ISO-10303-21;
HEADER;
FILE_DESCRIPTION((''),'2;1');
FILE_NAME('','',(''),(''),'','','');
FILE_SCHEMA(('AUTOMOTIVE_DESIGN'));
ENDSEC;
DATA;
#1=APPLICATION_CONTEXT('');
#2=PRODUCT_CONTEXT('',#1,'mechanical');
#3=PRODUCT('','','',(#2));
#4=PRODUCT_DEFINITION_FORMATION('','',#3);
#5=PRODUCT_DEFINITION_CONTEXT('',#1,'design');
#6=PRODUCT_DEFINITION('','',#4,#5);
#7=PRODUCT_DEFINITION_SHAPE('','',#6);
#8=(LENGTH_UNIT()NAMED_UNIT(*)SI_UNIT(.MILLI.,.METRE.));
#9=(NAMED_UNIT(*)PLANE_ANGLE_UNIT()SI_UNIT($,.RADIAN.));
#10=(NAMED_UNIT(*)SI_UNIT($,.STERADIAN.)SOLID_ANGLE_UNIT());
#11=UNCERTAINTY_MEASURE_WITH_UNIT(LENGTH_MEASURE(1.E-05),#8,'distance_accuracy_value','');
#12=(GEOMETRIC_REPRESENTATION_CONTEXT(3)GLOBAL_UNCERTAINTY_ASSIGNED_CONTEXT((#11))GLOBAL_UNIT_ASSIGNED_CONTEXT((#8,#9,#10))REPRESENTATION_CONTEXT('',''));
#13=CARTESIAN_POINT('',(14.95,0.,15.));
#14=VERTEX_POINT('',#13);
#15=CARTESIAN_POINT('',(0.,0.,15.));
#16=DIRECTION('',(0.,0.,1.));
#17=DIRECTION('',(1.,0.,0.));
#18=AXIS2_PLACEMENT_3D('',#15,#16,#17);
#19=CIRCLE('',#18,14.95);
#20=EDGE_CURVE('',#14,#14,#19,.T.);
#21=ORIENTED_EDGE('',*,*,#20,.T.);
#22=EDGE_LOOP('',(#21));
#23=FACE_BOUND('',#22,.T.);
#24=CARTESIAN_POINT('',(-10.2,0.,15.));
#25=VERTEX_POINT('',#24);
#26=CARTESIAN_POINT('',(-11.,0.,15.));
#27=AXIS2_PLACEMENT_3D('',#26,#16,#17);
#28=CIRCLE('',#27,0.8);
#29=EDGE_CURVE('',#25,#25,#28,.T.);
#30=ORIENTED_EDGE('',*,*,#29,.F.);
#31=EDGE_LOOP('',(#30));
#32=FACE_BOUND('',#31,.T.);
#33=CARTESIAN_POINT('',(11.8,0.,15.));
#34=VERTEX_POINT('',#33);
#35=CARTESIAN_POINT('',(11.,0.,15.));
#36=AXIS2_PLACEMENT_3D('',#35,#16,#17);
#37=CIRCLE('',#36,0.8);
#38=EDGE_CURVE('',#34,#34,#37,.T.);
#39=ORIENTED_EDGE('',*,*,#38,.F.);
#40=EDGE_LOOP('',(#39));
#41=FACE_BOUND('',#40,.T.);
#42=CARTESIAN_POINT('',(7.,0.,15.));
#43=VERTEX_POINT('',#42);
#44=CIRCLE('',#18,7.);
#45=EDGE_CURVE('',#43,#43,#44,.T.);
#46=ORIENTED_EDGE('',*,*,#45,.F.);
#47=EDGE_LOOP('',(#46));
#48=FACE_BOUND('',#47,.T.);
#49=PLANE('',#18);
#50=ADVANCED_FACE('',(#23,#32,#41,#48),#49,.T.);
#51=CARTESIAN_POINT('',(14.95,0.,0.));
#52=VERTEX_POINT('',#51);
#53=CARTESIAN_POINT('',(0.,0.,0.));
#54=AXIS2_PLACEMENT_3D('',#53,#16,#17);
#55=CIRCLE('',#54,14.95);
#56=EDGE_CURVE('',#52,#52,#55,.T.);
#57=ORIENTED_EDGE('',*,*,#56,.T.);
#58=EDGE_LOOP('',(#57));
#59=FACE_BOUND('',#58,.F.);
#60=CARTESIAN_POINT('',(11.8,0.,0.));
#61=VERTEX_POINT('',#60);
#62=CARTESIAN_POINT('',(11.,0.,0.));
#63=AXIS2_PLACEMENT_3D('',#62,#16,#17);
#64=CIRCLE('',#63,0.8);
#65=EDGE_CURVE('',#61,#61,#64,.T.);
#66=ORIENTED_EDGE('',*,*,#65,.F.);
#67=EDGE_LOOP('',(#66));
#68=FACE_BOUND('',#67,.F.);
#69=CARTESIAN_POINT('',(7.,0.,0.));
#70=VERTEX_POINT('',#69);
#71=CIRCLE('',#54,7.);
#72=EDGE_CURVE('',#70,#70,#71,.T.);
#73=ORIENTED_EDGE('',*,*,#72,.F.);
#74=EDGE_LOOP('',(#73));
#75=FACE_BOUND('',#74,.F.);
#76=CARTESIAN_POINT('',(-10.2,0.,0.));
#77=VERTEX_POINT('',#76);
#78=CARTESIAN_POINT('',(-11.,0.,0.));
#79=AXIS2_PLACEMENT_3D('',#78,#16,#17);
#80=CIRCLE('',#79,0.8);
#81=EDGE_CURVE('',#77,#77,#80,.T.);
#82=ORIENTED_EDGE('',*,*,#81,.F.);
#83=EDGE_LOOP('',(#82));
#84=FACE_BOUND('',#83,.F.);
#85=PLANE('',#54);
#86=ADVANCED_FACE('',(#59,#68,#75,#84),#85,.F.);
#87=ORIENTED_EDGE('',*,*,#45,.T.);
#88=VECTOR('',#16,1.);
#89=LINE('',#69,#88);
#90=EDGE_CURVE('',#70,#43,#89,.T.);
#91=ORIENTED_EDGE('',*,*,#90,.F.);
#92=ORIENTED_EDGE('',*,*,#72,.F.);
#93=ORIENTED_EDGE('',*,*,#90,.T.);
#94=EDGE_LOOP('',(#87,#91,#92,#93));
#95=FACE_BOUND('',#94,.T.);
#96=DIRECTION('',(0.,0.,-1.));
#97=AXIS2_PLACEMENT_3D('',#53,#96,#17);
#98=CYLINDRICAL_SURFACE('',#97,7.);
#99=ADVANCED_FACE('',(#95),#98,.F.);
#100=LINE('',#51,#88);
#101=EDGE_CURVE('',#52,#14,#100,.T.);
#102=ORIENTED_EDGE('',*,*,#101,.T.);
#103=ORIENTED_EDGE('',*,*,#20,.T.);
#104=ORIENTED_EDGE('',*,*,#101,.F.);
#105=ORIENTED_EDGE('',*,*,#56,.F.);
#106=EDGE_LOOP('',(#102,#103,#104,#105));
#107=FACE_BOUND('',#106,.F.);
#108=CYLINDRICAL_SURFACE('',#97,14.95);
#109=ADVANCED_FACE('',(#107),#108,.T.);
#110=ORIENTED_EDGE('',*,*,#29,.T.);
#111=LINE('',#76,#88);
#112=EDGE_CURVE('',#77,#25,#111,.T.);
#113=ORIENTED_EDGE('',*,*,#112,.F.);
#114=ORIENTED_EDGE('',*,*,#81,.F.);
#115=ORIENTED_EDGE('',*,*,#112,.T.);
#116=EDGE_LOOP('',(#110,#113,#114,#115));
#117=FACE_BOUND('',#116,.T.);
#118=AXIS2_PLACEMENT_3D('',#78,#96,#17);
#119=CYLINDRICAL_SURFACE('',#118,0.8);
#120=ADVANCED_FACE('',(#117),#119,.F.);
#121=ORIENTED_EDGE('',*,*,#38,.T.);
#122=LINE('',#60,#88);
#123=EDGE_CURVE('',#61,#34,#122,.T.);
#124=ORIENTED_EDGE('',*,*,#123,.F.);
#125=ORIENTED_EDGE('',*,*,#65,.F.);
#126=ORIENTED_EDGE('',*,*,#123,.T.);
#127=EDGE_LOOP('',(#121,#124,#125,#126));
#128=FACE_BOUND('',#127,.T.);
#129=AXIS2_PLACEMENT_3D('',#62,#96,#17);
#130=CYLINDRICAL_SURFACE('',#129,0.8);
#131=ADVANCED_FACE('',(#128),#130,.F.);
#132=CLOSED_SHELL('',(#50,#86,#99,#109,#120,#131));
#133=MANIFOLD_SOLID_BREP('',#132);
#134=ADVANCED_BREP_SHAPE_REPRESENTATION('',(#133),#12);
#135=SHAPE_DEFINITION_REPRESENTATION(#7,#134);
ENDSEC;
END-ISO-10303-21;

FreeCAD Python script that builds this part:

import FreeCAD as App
import Part
import Sketcher
from FreeCAD import Vector
Q = App.Units.Quantity

doc = App.newDocument("Part")
body = doc.addObject("PartDesign::Body", "Body")

# Sketch on XY plane
sketch1 = body.newObject("Sketcher::SketchObject", "Sketch")
sketch1.AttachmentSupport = (doc.getObject("XY_Plane"), [""])
sketch1.MapMode = "FlatFace"
sketch1.addGeometry(Part.Circle(Vector(0, 0, 0), Vector(0, 0, 1), 14.95), False)
sketch1.addConstraint(Sketcher.Constraint("Coincident", 0, 3, -1, 1))
sketch1.addConstraint(Sketcher.Constraint("Diameter", 0, Q("29.9 mm")))
pad1 = body.newObject("PartDesign::Pad", "Pad")
pad1.Profile = sketch1
pad1.Length = 15

# Sketch on XY plane
sketch2 = body.newObject("Sketcher::SketchObject", "Sketch001")
sketch2.AttachmentSupport = (doc.getObject("XY_Plane"), [""])
sketch2.MapMode = "FlatFace"
sketch2.addGeometry(Part.Circle(Vector(0, 0, 0), Vector(0, 0, 1), 7), False)
sketch2.addConstraint(Sketcher.Constraint("Coincident", 0, 3, -1, 1))
sketch2.addConstraint(Sketcher.Constraint("Diameter", 0, Q("14 mm")))
pocket1 = body.newObject("PartDesign::Pocket", "Pocket")
pocket1.Profile = sketch2
pocket1.Length = 15
pocket1.Reversed = True

# Sketch on XY plane
sketch3 = body.newObject("Sketcher::SketchObject", "Sketch002")
sketch3.AttachmentSupport = (doc.getObject("XY_Plane"), [""])
sketch3.MapMode = "FlatFace"
sketch3.addGeometry(Part.Circle(Vector(-11, 0, 0), Vector(0, 0, 1), 0.8), False)
sketch3.addGeometry(Part.Circle(Vector(11, 0, 0), Vector(0, 0, 1), 0.8), False)
sketch3.addConstraint(Sketcher.Constraint("Equal", 0, 1))
sketch3.addConstraint(Sketcher.Constraint("Symmetric", 0, 3, 1, 3, -1, 1))
sketch3.addConstraint(Sketcher.Constraint("PointOnObject", 0, 3, -1))
sketch3.addConstraint(Sketcher.Constraint("Diameter", 0, Q("1.6 mm")))
sketch3.addConstraint(Sketcher.Constraint("DistanceX", 0, 3, -1, 1, Q("11 mm")))
pocket2 = body.newObject("PartDesign::Pocket", "Pocket001")
pocket2.Profile = sketch3
pocket2.Length = 15
pocket2.Reversed = True

doc.recompute()
